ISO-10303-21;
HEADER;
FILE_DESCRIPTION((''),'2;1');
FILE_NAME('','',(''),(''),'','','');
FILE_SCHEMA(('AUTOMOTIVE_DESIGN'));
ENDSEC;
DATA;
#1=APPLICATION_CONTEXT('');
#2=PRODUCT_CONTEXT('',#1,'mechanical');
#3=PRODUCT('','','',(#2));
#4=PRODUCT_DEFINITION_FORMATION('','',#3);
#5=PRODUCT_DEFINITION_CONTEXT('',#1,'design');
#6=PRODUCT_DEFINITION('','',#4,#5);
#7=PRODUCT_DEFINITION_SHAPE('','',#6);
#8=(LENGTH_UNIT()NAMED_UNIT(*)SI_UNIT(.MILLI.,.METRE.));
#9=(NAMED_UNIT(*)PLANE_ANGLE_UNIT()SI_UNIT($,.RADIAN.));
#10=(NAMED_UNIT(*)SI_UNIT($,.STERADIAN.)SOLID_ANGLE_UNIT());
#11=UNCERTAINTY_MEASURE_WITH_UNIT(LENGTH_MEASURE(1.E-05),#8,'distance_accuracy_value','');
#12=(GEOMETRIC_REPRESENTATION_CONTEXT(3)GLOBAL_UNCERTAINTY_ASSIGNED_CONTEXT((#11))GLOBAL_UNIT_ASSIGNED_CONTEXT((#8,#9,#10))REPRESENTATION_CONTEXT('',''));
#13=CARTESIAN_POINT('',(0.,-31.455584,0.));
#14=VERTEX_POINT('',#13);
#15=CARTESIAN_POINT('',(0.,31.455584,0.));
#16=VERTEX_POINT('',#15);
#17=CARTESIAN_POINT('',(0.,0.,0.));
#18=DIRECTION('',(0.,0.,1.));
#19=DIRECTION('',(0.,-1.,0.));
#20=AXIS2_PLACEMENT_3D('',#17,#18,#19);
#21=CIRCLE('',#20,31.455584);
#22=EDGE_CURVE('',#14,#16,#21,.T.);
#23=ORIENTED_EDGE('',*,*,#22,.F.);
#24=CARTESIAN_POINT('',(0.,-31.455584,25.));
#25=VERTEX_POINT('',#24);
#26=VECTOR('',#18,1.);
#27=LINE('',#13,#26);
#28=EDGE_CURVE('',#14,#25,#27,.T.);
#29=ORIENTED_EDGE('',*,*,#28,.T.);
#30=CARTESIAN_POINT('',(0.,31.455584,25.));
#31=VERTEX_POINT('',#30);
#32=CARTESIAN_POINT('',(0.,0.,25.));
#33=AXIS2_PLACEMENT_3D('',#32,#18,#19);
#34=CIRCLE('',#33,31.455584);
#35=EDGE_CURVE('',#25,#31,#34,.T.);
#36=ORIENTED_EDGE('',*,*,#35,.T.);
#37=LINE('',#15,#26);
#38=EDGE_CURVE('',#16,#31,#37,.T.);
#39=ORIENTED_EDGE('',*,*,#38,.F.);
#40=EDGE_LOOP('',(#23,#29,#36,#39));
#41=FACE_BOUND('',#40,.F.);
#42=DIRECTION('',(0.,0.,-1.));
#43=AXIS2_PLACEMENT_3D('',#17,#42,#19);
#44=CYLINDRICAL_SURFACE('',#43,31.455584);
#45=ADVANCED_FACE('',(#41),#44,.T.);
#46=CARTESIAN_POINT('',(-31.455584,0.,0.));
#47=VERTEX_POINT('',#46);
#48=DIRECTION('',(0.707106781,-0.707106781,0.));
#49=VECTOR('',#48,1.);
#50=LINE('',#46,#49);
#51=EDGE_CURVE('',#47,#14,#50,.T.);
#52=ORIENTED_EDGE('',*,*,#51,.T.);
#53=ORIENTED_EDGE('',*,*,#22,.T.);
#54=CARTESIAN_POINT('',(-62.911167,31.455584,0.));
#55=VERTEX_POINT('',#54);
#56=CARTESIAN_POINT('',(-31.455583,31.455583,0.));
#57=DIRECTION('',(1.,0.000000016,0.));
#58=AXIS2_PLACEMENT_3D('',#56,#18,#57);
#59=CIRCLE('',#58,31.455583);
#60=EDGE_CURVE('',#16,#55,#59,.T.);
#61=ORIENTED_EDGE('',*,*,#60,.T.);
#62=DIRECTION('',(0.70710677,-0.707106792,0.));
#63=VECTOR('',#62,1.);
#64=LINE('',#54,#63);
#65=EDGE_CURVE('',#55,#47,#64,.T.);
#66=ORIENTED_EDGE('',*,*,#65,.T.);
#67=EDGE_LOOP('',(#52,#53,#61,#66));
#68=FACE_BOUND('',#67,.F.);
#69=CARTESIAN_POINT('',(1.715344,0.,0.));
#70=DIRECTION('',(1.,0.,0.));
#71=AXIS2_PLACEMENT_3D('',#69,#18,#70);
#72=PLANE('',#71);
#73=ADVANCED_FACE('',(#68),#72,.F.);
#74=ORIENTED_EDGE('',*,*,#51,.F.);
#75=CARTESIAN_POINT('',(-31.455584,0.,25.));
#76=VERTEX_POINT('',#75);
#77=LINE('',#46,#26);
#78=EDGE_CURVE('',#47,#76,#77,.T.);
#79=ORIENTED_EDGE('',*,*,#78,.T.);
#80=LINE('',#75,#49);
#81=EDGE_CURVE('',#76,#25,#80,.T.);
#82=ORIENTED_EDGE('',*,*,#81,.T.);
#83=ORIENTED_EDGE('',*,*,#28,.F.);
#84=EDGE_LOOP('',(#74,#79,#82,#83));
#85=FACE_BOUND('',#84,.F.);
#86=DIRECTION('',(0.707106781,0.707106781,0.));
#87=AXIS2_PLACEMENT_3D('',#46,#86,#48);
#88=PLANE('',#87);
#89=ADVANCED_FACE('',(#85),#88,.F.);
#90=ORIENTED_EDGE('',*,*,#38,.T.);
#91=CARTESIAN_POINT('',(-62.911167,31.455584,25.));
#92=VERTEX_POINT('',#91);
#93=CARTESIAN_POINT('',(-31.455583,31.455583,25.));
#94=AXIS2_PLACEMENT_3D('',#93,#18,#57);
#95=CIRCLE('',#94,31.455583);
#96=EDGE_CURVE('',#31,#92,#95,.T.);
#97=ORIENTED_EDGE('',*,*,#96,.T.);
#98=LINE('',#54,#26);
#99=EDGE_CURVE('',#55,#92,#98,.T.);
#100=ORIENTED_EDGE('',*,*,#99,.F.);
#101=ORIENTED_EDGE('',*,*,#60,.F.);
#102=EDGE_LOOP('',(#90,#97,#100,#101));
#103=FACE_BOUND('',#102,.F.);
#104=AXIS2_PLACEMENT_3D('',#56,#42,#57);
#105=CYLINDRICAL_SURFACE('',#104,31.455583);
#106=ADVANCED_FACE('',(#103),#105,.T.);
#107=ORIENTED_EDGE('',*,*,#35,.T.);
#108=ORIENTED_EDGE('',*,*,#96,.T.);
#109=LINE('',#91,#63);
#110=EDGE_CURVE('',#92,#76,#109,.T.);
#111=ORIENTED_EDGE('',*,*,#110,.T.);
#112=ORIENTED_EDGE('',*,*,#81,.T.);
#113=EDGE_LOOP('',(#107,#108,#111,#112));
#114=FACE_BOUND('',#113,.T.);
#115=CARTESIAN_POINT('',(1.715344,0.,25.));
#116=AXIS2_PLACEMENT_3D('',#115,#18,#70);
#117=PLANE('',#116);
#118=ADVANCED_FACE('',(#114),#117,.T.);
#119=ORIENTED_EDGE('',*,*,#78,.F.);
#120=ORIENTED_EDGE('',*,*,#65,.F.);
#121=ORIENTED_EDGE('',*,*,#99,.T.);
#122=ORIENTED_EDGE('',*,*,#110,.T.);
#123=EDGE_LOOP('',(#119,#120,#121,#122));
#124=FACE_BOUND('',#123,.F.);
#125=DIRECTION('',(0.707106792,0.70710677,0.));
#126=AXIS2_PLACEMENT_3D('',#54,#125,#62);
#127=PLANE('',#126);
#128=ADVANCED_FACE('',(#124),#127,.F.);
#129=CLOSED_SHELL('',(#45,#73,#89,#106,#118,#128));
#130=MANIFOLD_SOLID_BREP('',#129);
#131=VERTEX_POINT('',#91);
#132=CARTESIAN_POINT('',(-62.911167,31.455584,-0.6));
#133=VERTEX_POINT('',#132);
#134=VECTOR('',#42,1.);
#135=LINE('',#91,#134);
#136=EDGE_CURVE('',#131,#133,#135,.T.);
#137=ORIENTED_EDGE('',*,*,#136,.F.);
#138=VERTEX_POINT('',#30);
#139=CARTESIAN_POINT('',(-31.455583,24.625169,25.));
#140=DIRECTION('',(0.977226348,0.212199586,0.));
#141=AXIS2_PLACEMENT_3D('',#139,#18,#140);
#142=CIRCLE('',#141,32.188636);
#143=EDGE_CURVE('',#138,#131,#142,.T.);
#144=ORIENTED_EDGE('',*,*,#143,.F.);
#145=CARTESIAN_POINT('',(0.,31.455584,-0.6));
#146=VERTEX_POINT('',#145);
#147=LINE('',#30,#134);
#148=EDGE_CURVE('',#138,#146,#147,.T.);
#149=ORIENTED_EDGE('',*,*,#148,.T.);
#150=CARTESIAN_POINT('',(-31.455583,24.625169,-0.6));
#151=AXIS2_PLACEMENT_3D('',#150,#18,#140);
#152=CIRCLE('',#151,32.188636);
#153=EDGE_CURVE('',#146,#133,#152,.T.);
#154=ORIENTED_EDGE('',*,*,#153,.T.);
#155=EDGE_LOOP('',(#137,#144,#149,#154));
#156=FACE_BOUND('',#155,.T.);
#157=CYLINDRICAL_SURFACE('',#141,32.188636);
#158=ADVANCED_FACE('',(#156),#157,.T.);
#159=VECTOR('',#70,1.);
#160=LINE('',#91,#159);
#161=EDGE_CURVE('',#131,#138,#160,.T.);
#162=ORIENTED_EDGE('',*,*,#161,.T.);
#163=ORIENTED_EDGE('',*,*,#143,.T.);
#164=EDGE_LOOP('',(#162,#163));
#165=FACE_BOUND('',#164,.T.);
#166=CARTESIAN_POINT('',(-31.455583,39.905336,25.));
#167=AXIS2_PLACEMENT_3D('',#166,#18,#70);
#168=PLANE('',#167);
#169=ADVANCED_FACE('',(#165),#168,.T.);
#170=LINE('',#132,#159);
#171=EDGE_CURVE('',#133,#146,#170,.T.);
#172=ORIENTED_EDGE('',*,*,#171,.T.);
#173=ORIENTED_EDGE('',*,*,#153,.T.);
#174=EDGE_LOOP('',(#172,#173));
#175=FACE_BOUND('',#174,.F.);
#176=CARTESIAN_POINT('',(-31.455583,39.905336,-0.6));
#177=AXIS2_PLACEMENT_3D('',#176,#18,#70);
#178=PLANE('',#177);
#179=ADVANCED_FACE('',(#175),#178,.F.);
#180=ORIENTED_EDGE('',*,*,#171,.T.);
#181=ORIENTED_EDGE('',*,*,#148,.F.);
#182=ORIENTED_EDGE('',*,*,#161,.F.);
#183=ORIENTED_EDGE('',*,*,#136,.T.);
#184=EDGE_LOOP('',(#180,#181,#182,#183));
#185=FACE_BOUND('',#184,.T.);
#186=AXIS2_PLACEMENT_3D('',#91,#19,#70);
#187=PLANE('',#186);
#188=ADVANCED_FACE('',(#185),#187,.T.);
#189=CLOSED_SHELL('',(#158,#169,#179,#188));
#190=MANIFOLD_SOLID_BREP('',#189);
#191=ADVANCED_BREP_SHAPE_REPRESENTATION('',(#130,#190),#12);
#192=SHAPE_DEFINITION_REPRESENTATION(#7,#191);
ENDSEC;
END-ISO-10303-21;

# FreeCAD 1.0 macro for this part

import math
import FreeCAD as App
import Part
import Sketcher
Q = App.Units.Quantity

doc = App.newDocument("Part")
body = doc.addObject("PartDesign::Body", "Body")

# Sketch on XY plane
sketch1 = doc.addObject("Sketcher::SketchObject", "Sketch")
body.addObject(sketch1)
sketch1.AttachmentSupport = (doc.XY_Plane, [""])
sketch1.MapMode = "FlatFace"
sketch1.addGeometry(Part.LineSegment(App.Vector(-31.455584, 0, 0), App.Vector(0, -31.455584, 0)), False)
sketch1.addGeometry(Part.ArcOfCircle(Part.Circle(App.Vector(0, 0, 0), App.Vector(0, 0, 1), 31.455584), math.radians(-90), math.radians(90)), False)
sketch1.addGeometry(Part.ArcOfCircle(Part.Circle(App.Vector(-31.455583, 31.455583, 0), App.Vector(0, 0, 1), 31.455583), math.radians(0.000001), math.radians(179.999999)), False)
sketch1.addGeometry(Part.LineSegment(App.Vector(-62.911167, 31.455584, 0), App.Vector(-31.455584, 0, 0)), False)
sketch1.addConstraint(Sketcher.Constraint("Coincident", 0, 2, 1, 1))
sketch1.addConstraint(Sketcher.Constraint("Coincident", 1, 2, 2, 1))
sketch1.addConstraint(Sketcher.Constraint("Coincident", 2, 2, 3, 1))
sketch1.addConstraint(Sketcher.Constraint("Coincident", 3, 2, 0, 1))
sketch1.addConstraint(Sketcher.Constraint("Coincident", 1, 3, -1, 1))
sketch1.addConstraint(Sketcher.Constraint("Equal", 1, 2))
sketch1.addConstraint(Sketcher.Constraint("PointOnObject", 0, 2, -2))
sketch1.addConstraint(Sketcher.Constraint("PointOnObject", 1, 2, -2))
sketch1.addConstraint(Sketcher.Constraint("PointOnObject", 3, 2, -1))
sketch1.addConstraint(Sketcher.Constraint("Parallel", 0, 3))
sketch1.addConstraint(Sketcher.Constraint("Horizontal", 2, 3, 1, 2))
sketch1.addConstraint(Sketcher.Constraint("Horizontal", 1, 2, 2, 2))
sketch1.addConstraint(Sketcher.Constraint("Radius", 1, Q("31.455584 mm")))
pad1 = doc.addObject("PartDesign::Pad", "Pad")
body.addObject(pad1)
pad1.Profile = sketch1
pad1.Length = 25
body2 = doc.addObject("PartDesign::Body", "Body001")

# Sketch on XY plane
sketch2 = doc.addObject("Sketcher::SketchObject", "Sketch001")
body2.addObject(sketch2)
sketch2.AttachmentSupport = (doc.getObject("XY_Plane001"), [""])
sketch2.MapMode = "FlatFace"
sketch2.AttachmentOffset = App.Placement(App.Vector(0, 0, 25), App.Rotation())
sketch2.addGeometry(Part.LineSegment(App.Vector(-62.911167, 31.455584, 0), App.Vector(0, 31.455584, 0)), False)
sketch2.addGeometry(Part.ArcOfCircle(Part.Circle(App.Vector(-31.455583, 24.625169, 0), App.Vector(0, 0, 1), 32.188636), math.radians(12.251285), math.radians(167.748715)), False)
sketch2.addConstraint(Sketcher.Constraint("Coincident", 0, 1, 1, 2))
sketch2.addConstraint(Sketcher.Constraint("Coincident", 1, 1, 0, 2))
sketch2.addConstraint(Sketcher.Constraint("Horizontal", 0))
sketch2.addConstraint(Sketcher.Constraint("PointOnObject", 1, 1, -2))
sketch2.addConstraint(Sketcher.Constraint("Radius", 1, Q("32.188636 mm")))
sketch2.addConstraint(Sketcher.Constraint("DistanceX", 0, 1, 0, 2, Q("62.911167 mm")))
sketch2.addConstraint(Sketcher.Constraint("DistanceY", -1, 1, 1, 3, Q("24.625169 mm")))
pad2 = doc.addObject("PartDesign::Pad", "Pad001")
body2.addObject(pad2)
pad2.Profile = sketch2
pad2.Length = 25.6
pad2.Reversed = True

doc.recompute()
